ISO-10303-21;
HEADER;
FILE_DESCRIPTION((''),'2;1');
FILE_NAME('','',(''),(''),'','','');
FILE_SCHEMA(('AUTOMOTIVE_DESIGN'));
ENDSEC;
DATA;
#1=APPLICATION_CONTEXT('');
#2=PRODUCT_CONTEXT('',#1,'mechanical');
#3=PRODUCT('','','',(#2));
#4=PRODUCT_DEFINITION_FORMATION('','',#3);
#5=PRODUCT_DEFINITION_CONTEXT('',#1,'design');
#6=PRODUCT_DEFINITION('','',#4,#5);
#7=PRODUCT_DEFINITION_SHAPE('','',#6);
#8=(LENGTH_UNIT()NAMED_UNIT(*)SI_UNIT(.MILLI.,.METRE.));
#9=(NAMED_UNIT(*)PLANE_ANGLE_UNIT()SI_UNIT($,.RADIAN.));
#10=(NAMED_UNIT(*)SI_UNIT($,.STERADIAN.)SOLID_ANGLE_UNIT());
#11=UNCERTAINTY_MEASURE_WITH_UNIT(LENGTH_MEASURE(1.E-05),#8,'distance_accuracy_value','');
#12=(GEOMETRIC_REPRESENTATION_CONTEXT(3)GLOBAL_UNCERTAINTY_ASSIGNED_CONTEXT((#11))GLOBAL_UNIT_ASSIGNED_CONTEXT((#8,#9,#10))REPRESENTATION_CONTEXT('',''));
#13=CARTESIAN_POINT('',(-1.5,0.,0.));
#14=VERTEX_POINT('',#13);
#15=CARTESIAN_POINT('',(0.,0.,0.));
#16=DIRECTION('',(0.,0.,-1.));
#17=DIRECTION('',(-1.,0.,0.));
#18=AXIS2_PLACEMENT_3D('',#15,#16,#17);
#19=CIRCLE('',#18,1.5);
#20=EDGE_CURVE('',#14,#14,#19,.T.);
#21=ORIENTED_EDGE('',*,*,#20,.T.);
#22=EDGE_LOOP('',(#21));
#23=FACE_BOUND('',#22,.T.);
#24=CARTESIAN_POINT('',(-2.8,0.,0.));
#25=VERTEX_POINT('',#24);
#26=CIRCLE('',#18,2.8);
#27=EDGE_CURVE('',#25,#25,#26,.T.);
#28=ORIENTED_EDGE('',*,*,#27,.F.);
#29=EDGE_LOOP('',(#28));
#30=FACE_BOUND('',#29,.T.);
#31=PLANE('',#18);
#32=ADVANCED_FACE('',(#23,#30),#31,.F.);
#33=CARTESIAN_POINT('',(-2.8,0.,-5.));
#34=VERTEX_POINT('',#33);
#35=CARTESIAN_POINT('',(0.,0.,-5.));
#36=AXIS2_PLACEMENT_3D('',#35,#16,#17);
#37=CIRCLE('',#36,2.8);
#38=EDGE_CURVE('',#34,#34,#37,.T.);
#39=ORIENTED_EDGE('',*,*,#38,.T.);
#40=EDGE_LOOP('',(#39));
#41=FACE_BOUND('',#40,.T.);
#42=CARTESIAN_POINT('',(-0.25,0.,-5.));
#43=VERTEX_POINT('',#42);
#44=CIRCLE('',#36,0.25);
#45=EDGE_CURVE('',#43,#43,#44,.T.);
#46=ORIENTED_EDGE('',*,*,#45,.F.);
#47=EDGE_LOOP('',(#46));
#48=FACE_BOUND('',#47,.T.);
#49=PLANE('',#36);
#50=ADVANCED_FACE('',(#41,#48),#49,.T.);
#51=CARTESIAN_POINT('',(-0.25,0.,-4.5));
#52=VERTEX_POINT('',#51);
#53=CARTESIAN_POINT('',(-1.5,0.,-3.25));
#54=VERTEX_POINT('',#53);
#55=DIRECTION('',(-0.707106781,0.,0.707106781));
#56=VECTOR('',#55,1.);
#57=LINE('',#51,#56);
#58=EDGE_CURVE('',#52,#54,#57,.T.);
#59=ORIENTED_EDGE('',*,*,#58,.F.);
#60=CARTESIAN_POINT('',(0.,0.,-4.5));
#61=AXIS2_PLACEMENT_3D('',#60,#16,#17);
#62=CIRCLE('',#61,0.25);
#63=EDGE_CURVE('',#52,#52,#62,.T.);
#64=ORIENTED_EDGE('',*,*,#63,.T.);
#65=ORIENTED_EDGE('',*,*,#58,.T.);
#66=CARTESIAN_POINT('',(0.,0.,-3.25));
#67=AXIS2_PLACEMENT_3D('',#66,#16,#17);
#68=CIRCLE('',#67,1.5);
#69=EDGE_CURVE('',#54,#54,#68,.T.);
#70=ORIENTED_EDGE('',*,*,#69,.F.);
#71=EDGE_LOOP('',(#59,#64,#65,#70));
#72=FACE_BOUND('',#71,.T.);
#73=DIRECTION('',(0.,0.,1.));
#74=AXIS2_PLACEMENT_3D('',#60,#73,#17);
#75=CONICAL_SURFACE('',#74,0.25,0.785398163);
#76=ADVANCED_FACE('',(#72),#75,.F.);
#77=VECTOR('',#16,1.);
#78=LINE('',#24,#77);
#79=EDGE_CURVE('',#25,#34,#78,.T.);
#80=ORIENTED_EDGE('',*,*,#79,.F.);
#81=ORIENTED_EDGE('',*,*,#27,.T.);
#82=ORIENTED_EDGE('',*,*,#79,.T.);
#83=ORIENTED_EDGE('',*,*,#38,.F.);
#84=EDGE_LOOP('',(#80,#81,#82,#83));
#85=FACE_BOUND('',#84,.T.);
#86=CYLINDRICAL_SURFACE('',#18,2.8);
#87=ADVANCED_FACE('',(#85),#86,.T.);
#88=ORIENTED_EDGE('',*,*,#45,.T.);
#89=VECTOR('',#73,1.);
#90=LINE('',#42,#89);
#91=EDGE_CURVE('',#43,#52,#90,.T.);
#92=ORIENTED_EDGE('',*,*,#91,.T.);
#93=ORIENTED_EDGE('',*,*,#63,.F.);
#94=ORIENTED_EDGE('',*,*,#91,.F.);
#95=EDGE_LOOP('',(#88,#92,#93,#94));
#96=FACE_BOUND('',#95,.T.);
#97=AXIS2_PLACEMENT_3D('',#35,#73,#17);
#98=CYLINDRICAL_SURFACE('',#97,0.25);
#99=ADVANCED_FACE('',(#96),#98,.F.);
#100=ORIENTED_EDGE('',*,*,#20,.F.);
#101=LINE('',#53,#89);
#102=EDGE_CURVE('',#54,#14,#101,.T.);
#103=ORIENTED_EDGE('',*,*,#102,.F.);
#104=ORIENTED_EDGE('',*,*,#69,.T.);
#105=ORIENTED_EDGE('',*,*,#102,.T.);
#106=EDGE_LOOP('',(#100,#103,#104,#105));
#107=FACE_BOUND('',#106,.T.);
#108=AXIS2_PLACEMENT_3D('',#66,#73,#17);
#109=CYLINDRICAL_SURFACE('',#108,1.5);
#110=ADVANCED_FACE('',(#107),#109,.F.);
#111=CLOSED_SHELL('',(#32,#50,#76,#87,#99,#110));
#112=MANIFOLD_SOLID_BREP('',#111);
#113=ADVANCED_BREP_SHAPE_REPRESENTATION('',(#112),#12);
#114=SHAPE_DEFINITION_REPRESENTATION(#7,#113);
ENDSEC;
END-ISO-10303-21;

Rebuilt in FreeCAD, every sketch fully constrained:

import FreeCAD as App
import Part
import Sketcher
Q = App.Units.Quantity

doc = App.newDocument("Part")
params = doc.addObject("Spreadsheet::Sheet", "Params")
for row, (alias, value) in enumerate([
    ("sketch1_height", "5 mm"),
    ("sketch1_height2", "0.5 mm"),
    ("revolution_angle", "360 deg"),
], start=1):
    params.set(f"A{row}", alias)
    params.set(f"B{row}", "=" + value)
    params.setAlias(f"B{row}", alias)

body = doc.addObject("PartDesign::Body", "Body")

# Sketch on XZ plane
sketch1 = body.newObject("Sketcher::SketchObject", "Sketch")
sketch1.AttachmentSupport = (doc.getObject("XZ_Plane"), [""])
sketch1.MapMode = "FlatFace"
sketch1.addGeometry(Part.LineSegment(App.Vector(-2.8, -5, 0), App.Vector(-2.8, 0, 0)), False)
sketch1.addGeometry(Part.LineSegment(App.Vector(-2.8, 0, 0), App.Vector(-1.5, 0, 0)), False)
sketch1.addGeometry(Part.LineSegment(App.Vector(-1.5, 0, 0), App.Vector(-1.5, -3.2, 0)), False)
sketch1.addGeometry(Part.LineSegment(App.Vector(-1.5, -3.2, 0), App.Vector(-0.2, -4.5, 0)), False)
sketch1.addGeometry(Part.LineSegment(App.Vector(-0.2, -4.5, 0), App.Vector(-0.2, -5, 0)), False)
sketch1.addGeometry(Part.LineSegment(App.Vector(-0.2, -5, 0), App.Vector(-2.8, -5, 0)), False)
sketch1.addConstraint(Sketcher.Constraint("Coincident", 0, 2, 1, 1))
sketch1.addConstraint(Sketcher.Constraint("Coincident", 1, 2, 2, 1))
sketch1.addConstraint(Sketcher.Constraint("Coincident", 2, 2, 3, 1))
sketch1.addConstraint(Sketcher.Constraint("Coincident", 3, 2, 4, 1))
sketch1.addConstraint(Sketcher.Constraint("Coincident", 4, 2, 5, 1))
sketch1.addConstraint(Sketcher.Constraint("Coincident", 5, 2, 0, 1))
sketch1.addConstraint(Sketcher.Constraint("Vertical", 0))
sketch1.addConstraint(Sketcher.Constraint("Horizontal", 1))
sketch1.addConstraint(Sketcher.Constraint("Vertical", 2))
sketch1.addConstraint(Sketcher.Constraint("Vertical", 4))
sketch1.addConstraint(Sketcher.Constraint("Horizontal", 5))
sketch1.addConstraint(Sketcher.Constraint("PointOnObject", 0, 2, -1))
sketch1.addConstraint(Sketcher.Constraint("DistanceY", 0, 1, 0, 2, 5.0))
sketch1.addConstraint(Sketcher.Constraint("DistanceY", 4, 2, 4, 1, 0.5))
sketch1.addConstraint(Sketcher.Constraint("DistanceX", 0, 2, -1, 1, 2.8))
sketch1.addConstraint(Sketcher.Constraint("DistanceX", 1, 2, -1, 1, 1.5))
sketch1.addConstraint(Sketcher.Constraint("DistanceX", 3, 2, -1, 1, 0.25))
sketch1.addConstraint(Sketcher.Constraint("Angle", 3, Q("-45 deg")))
sketch1.setExpression("Constraints[12]", "Params.sketch1_height")
sketch1.setExpression("Constraints[13]", "Params.sketch1_height2")
revolution = body.newObject("PartDesign::Revolution", "Revolution")
revolution.Profile = sketch1
revolution.ReferenceAxis = (sketch1, ["V_Axis"])
revolution.setExpression("Angle", "Params.revolution_angle")

doc.recompute()
